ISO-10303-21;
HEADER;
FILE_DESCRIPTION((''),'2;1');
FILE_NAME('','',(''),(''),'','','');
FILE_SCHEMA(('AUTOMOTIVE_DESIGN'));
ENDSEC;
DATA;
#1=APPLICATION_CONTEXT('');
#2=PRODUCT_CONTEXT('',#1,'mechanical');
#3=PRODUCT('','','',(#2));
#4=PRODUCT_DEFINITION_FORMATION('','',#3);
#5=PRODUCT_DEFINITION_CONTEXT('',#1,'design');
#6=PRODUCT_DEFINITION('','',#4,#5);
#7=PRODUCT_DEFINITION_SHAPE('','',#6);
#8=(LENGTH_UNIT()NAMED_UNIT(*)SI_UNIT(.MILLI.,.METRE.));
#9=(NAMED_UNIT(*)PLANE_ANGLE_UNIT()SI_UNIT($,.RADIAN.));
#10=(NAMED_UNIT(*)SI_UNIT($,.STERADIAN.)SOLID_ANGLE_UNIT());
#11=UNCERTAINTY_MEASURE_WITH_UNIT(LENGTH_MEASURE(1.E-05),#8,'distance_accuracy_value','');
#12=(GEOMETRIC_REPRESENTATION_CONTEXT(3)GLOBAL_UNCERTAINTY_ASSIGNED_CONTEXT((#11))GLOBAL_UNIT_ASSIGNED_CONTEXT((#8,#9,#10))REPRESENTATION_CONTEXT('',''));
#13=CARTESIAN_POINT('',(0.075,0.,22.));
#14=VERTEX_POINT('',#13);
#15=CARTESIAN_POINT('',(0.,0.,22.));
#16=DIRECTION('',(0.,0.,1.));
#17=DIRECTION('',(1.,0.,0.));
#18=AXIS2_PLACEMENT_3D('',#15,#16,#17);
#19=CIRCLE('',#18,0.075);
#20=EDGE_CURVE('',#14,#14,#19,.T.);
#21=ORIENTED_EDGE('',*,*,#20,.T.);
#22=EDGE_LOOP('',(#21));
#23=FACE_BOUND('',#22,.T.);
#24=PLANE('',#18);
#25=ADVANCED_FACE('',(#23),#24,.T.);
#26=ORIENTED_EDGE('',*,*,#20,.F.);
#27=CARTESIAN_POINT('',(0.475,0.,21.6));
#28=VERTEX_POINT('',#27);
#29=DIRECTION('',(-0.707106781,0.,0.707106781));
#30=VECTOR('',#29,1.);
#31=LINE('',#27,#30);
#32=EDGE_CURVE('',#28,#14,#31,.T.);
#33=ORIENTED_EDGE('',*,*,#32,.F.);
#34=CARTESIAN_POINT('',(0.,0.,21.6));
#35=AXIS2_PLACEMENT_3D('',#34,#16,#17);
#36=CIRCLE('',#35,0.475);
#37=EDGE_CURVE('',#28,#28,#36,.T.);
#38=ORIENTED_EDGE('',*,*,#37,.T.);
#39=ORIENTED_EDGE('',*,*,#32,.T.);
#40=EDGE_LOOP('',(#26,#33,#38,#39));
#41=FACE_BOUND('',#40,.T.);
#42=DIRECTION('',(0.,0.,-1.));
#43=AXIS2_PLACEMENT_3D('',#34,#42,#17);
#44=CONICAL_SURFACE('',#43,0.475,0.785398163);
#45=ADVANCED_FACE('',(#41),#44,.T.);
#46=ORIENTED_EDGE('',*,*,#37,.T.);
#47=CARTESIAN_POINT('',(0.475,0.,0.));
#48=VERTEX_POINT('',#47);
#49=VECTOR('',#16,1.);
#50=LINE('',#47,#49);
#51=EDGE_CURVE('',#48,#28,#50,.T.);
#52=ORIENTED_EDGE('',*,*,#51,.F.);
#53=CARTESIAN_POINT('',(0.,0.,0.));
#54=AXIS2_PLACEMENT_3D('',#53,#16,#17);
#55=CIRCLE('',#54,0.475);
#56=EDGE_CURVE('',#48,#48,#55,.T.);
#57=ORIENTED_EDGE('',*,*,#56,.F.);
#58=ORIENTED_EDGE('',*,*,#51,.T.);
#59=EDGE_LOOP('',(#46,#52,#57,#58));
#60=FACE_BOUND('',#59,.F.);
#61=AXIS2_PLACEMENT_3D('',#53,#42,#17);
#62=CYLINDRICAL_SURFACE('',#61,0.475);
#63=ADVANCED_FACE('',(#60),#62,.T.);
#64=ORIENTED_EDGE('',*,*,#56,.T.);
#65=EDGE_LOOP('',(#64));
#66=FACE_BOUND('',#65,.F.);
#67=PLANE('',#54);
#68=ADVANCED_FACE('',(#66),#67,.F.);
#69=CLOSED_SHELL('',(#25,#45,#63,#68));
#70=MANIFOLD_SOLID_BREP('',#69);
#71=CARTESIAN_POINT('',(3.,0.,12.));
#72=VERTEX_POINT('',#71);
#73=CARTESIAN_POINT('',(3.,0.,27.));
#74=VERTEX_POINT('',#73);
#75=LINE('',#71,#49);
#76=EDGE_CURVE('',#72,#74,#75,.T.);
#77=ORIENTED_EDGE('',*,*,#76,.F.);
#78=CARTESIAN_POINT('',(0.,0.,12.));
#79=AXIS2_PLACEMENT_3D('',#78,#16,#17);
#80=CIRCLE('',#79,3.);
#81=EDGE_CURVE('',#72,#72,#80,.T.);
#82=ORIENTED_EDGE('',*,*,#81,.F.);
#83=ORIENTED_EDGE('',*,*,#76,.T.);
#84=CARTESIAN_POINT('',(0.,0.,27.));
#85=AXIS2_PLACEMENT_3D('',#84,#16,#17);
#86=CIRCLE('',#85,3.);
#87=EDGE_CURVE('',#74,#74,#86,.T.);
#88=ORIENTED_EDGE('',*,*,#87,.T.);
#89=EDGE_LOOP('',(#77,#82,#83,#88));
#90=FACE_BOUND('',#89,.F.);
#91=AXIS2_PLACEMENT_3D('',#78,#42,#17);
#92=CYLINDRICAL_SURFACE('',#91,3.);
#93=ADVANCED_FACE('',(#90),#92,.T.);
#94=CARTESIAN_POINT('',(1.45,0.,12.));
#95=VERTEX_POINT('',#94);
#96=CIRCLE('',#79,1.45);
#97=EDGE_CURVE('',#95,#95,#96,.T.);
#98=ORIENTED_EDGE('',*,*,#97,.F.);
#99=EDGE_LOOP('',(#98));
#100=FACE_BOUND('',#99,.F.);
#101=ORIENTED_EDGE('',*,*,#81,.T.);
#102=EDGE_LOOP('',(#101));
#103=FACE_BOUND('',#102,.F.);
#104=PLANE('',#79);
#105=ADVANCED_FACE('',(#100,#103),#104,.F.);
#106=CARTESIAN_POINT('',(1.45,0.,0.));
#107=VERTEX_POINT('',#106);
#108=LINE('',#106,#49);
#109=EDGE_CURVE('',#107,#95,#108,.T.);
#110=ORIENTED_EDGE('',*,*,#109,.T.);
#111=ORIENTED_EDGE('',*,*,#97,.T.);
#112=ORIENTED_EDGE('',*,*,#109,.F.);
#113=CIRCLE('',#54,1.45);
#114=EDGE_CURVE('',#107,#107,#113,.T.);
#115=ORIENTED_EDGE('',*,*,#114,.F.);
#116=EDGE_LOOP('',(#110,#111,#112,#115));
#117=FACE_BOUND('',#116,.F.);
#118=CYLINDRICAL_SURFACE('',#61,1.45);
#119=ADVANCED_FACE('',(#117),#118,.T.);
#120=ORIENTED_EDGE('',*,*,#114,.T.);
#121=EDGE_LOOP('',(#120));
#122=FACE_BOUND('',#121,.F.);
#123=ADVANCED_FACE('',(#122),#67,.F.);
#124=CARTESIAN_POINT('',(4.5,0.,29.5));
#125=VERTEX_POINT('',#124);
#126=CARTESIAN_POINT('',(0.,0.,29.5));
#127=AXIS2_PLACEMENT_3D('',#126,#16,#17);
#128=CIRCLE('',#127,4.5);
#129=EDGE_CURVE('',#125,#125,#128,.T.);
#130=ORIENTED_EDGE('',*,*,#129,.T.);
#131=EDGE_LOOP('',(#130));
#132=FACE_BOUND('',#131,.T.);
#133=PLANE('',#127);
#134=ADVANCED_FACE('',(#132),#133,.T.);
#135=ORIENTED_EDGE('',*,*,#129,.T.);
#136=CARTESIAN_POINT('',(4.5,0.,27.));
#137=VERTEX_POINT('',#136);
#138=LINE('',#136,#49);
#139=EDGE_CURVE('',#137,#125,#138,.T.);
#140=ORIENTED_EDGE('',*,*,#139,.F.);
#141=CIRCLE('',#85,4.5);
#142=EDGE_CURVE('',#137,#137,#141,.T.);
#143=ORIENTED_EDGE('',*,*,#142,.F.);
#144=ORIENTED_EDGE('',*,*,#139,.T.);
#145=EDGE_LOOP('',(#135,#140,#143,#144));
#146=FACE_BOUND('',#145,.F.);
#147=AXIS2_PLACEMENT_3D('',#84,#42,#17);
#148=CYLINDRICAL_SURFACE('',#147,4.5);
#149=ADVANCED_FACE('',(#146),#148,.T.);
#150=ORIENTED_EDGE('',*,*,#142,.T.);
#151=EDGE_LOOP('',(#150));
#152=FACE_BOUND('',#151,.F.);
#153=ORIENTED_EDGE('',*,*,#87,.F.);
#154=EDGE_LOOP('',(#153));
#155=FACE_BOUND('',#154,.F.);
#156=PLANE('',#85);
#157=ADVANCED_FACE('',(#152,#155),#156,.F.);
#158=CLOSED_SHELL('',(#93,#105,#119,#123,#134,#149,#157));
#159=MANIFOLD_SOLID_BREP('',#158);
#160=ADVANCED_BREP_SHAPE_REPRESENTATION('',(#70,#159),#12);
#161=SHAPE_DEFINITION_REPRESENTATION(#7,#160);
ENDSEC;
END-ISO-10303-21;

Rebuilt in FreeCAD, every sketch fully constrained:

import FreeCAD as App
import Part
import Sketcher
from FreeCAD import Vector
Q = App.Units.Quantity


def edges_at(feature, points):
    """Names of the edges that pass closest to the given points."""
    edges = feature.Shape.Edges
    near = lambda p: min(range(len(edges)), key=lambda i: edges[i].distToShape(Part.Vertex(*p))[0])
    return sorted({f"Edge{near(p) + 1}" for p in points})

doc = App.newDocument("Part")
body = doc.addObject("PartDesign::Body", "Body")

sketch1 = body.newObject("Sketcher::SketchObject", "Sketch")
sketch1.AttachmentSupport = (doc.getObject("XY_Plane"), [""])
sketch1.MapMode = "FlatFace"
sketch1.addGeometry(Part.Circle(Vector(0, 0, 0), Vector(0, 0, 1), 1.4), False)
sketch1.addConstraint(Sketcher.Constraint("Coincident", 0, 3, -1, 1))
sketch1.addConstraint(Sketcher.Constraint("Diameter", 0, Q("2.9 mm")))
pad1 = body.newObject("PartDesign::Pad", "Pad")
pad1.Profile = sketch1
pad1.Length = 12

sketch2 = body.newObject("Sketcher::SketchObject", "Sketch001")
sketch2.AttachmentSupport = (doc.getObject("XY_Plane"), [""])
sketch2.MapMode = "FlatFace"
sketch2.AttachmentOffset = App.Placement(Vector(0, 0, 12), App.Rotation())
sketch2.addGeometry(Part.Circle(Vector(0, 0, 0), Vector(0, 0, 1), 3), False)
sketch2.addConstraint(Sketcher.Constraint("Coincident", 0, 3, -1, 1))
sketch2.addConstraint(Sketcher.Constraint("Diameter", 0, Q("6 mm")))
pad2 = body.newObject("PartDesign::Pad", "Pad001")
pad2.Profile = sketch2
pad2.Length = 15

sketch3 = body.newObject("Sketcher::SketchObject", "Sketch002")
sketch3.AttachmentSupport = (doc.getObject("XY_Plane"), [""])
sketch3.MapMode = "FlatFace"
sketch3.AttachmentOffset = App.Placement(Vector(0, 0, 27), App.Rotation())
sketch3.addGeometry(Part.Circle(Vector(0, 0, 0), Vector(0, 0, 1), 4.5), False)
sketch3.addConstraint(Sketcher.Constraint("Coincident", 0, 3, -1, 1))
sketch3.addConstraint(Sketcher.Constraint("Diameter", 0, Q("9 mm")))
pad3 = body.newObject("PartDesign::Pad", "Pad002")
pad3.Profile = sketch3
pad3.Length = 2.5
body2 = doc.addObject("PartDesign::Body", "Body001")

sketch4 = body2.newObject("Sketcher::SketchObject", "Sketch003")
sketch4.AttachmentSupport = (doc.getObject("XY_Plane001"), [""])
sketch4.MapMode = "FlatFace"
sketch4.addGeometry(Part.Circle(Vector(0, 0, 0), Vector(0, 0, 1), 0.47), False)
sketch4.addConstraint(Sketcher.Constraint("Coincident", 0, 3, -1, 1))
sketch4.addConstraint(Sketcher.Constraint("Diameter", 0, Q("0.95 mm")))
pad4 = body2.newObject("PartDesign::Pad", "Pad003")
pad4.Profile = sketch4
pad4.Length = 22
doc.recompute()

chamfer = body2.newObject("PartDesign::Chamfer", "Chamfer")
chamfer.Base = (pad4, edges_at(pad4, [(-0.475, 0, 22)]))
chamfer.Size = 0.4

doc.recompute()
